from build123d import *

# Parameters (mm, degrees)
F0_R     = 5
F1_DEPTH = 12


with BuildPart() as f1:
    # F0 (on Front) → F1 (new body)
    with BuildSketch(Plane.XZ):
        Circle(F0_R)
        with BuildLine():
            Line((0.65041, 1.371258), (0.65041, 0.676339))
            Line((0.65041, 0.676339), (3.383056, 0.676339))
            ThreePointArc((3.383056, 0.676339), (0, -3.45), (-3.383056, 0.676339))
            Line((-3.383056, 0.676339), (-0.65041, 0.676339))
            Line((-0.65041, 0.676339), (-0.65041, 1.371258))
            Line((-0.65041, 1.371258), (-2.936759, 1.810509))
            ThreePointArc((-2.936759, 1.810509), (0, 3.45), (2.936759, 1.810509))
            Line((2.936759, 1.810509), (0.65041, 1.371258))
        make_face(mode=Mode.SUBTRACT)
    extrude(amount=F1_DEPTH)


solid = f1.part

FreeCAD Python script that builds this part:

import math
import FreeCAD as App
import Part
import Sketcher
Q = App.Units.Quantity

doc = App.newDocument("Part")
body = doc.addObject("PartDesign::Body", "Body")

# Sketch on XZ plane
sketch1 = body.newObject("Sketcher::SketchObject", "Sketch")
sketch1.AttachmentSupport = (doc.getObject("XZ_Plane"), [""])
sketch1.MapMode = "FlatFace"
sketch1.addGeometry([
    Part.Circle(App.Vector(0, 0, 0), App.Vector(0, 0, 1), 5),  # 0
    Part.LineSegment(App.Vector(2.9, 1.8, 0), App.Vector(0.7, 1.4, 0)),  # 1
    Part.LineSegment(App.Vector(0.7, 1.4, 0), App.Vector(0.7, 0.7, 0)),  # 2
    Part.LineSegment(App.Vector(0.7, 0.7, 0), App.Vector(3.4, 0.7, 0)),  # 3
    Part.ArcOfCircle(Part.Circle(App.Vector(0, 0, 0), App.Vector(0, 0, 1), 3.5), math.radians(169), math.radians(371)),  # 4
    Part.LineSegment(App.Vector(-3.4, 0.7, 0), App.Vector(-0.7, 0.7, 0)),  # 5
    Part.LineSegment(App.Vector(-0.7, 0.7, 0), App.Vector(-0.7, 1.4, 0)),  # 6
    Part.LineSegment(App.Vector(-0.7, 1.4, 0), App.Vector(-2.9, 1.8, 0)),  # 7
    Part.ArcOfCircle(Part.Circle(App.Vector(0, 0, 0), App.Vector(0, 0, 1), 3.4), math.radians(32), math.radians(148)),  # 8
], False)
sketch1.addConstraint([
    Sketcher.Constraint("Coincident", 1, 2, 2, 1),
    Sketcher.Constraint("Coincident", 2, 2, 3, 1),
    Sketcher.Constraint("Coincident", 3, 2, 4, 2),
    Sketcher.Constraint("Coincident", 4, 1, 5, 1),
    Sketcher.Constraint("Coincident", 5, 2, 6, 1),
    Sketcher.Constraint("Coincident", 6, 2, 7, 1),
    Sketcher.Constraint("Coincident", 7, 2, 8, 2),
    Sketcher.Constraint("Coincident", 8, 1, 1, 1),
    Sketcher.Constraint("Vertical", 2),
    Sketcher.Constraint("Horizontal", 3),
    Sketcher.Constraint("Horizontal", 5),
    Sketcher.Constraint("Vertical", 6),
    Sketcher.Constraint("Coincident", 0, 3, -1, 1),
    Sketcher.Constraint("Coincident", 4, 3, -1, 1),
    Sketcher.Constraint("Coincident", 8, 3, -1, 1),
    Sketcher.Constraint("Equal", 4, 8),
    Sketcher.Constraint("Symmetric", 2, 2, 5, 2, -2),
    Sketcher.Constraint("Horizontal", 1, 2, 6, 2),
    Sketcher.Constraint("Horizontal", 7, 2, 8, 1),
    Sketcher.Constraint("Diameter", 0, Q("10 mm")),
    Sketcher.Constraint("Radius", 4, Q("3.45 mm")),
    Sketcher.Constraint("DistanceY", 2, 2, 2, 1, Q("0.694919 mm")),
    Sketcher.Constraint("Distance", 1, Q("2.328161 mm")),
    Sketcher.Constraint("DistanceX", 3, 1, 3, 2, Q("2.732646 mm")),
    Sketcher.Constraint("DistanceX", -1, 1, 1, 2, Q("0.65041 mm")),
])
pad1 = body.newObject("PartDesign::Pad", "Pad")
pad1.Profile = sketch1
pad1.Length = 12

doc.recompute()
